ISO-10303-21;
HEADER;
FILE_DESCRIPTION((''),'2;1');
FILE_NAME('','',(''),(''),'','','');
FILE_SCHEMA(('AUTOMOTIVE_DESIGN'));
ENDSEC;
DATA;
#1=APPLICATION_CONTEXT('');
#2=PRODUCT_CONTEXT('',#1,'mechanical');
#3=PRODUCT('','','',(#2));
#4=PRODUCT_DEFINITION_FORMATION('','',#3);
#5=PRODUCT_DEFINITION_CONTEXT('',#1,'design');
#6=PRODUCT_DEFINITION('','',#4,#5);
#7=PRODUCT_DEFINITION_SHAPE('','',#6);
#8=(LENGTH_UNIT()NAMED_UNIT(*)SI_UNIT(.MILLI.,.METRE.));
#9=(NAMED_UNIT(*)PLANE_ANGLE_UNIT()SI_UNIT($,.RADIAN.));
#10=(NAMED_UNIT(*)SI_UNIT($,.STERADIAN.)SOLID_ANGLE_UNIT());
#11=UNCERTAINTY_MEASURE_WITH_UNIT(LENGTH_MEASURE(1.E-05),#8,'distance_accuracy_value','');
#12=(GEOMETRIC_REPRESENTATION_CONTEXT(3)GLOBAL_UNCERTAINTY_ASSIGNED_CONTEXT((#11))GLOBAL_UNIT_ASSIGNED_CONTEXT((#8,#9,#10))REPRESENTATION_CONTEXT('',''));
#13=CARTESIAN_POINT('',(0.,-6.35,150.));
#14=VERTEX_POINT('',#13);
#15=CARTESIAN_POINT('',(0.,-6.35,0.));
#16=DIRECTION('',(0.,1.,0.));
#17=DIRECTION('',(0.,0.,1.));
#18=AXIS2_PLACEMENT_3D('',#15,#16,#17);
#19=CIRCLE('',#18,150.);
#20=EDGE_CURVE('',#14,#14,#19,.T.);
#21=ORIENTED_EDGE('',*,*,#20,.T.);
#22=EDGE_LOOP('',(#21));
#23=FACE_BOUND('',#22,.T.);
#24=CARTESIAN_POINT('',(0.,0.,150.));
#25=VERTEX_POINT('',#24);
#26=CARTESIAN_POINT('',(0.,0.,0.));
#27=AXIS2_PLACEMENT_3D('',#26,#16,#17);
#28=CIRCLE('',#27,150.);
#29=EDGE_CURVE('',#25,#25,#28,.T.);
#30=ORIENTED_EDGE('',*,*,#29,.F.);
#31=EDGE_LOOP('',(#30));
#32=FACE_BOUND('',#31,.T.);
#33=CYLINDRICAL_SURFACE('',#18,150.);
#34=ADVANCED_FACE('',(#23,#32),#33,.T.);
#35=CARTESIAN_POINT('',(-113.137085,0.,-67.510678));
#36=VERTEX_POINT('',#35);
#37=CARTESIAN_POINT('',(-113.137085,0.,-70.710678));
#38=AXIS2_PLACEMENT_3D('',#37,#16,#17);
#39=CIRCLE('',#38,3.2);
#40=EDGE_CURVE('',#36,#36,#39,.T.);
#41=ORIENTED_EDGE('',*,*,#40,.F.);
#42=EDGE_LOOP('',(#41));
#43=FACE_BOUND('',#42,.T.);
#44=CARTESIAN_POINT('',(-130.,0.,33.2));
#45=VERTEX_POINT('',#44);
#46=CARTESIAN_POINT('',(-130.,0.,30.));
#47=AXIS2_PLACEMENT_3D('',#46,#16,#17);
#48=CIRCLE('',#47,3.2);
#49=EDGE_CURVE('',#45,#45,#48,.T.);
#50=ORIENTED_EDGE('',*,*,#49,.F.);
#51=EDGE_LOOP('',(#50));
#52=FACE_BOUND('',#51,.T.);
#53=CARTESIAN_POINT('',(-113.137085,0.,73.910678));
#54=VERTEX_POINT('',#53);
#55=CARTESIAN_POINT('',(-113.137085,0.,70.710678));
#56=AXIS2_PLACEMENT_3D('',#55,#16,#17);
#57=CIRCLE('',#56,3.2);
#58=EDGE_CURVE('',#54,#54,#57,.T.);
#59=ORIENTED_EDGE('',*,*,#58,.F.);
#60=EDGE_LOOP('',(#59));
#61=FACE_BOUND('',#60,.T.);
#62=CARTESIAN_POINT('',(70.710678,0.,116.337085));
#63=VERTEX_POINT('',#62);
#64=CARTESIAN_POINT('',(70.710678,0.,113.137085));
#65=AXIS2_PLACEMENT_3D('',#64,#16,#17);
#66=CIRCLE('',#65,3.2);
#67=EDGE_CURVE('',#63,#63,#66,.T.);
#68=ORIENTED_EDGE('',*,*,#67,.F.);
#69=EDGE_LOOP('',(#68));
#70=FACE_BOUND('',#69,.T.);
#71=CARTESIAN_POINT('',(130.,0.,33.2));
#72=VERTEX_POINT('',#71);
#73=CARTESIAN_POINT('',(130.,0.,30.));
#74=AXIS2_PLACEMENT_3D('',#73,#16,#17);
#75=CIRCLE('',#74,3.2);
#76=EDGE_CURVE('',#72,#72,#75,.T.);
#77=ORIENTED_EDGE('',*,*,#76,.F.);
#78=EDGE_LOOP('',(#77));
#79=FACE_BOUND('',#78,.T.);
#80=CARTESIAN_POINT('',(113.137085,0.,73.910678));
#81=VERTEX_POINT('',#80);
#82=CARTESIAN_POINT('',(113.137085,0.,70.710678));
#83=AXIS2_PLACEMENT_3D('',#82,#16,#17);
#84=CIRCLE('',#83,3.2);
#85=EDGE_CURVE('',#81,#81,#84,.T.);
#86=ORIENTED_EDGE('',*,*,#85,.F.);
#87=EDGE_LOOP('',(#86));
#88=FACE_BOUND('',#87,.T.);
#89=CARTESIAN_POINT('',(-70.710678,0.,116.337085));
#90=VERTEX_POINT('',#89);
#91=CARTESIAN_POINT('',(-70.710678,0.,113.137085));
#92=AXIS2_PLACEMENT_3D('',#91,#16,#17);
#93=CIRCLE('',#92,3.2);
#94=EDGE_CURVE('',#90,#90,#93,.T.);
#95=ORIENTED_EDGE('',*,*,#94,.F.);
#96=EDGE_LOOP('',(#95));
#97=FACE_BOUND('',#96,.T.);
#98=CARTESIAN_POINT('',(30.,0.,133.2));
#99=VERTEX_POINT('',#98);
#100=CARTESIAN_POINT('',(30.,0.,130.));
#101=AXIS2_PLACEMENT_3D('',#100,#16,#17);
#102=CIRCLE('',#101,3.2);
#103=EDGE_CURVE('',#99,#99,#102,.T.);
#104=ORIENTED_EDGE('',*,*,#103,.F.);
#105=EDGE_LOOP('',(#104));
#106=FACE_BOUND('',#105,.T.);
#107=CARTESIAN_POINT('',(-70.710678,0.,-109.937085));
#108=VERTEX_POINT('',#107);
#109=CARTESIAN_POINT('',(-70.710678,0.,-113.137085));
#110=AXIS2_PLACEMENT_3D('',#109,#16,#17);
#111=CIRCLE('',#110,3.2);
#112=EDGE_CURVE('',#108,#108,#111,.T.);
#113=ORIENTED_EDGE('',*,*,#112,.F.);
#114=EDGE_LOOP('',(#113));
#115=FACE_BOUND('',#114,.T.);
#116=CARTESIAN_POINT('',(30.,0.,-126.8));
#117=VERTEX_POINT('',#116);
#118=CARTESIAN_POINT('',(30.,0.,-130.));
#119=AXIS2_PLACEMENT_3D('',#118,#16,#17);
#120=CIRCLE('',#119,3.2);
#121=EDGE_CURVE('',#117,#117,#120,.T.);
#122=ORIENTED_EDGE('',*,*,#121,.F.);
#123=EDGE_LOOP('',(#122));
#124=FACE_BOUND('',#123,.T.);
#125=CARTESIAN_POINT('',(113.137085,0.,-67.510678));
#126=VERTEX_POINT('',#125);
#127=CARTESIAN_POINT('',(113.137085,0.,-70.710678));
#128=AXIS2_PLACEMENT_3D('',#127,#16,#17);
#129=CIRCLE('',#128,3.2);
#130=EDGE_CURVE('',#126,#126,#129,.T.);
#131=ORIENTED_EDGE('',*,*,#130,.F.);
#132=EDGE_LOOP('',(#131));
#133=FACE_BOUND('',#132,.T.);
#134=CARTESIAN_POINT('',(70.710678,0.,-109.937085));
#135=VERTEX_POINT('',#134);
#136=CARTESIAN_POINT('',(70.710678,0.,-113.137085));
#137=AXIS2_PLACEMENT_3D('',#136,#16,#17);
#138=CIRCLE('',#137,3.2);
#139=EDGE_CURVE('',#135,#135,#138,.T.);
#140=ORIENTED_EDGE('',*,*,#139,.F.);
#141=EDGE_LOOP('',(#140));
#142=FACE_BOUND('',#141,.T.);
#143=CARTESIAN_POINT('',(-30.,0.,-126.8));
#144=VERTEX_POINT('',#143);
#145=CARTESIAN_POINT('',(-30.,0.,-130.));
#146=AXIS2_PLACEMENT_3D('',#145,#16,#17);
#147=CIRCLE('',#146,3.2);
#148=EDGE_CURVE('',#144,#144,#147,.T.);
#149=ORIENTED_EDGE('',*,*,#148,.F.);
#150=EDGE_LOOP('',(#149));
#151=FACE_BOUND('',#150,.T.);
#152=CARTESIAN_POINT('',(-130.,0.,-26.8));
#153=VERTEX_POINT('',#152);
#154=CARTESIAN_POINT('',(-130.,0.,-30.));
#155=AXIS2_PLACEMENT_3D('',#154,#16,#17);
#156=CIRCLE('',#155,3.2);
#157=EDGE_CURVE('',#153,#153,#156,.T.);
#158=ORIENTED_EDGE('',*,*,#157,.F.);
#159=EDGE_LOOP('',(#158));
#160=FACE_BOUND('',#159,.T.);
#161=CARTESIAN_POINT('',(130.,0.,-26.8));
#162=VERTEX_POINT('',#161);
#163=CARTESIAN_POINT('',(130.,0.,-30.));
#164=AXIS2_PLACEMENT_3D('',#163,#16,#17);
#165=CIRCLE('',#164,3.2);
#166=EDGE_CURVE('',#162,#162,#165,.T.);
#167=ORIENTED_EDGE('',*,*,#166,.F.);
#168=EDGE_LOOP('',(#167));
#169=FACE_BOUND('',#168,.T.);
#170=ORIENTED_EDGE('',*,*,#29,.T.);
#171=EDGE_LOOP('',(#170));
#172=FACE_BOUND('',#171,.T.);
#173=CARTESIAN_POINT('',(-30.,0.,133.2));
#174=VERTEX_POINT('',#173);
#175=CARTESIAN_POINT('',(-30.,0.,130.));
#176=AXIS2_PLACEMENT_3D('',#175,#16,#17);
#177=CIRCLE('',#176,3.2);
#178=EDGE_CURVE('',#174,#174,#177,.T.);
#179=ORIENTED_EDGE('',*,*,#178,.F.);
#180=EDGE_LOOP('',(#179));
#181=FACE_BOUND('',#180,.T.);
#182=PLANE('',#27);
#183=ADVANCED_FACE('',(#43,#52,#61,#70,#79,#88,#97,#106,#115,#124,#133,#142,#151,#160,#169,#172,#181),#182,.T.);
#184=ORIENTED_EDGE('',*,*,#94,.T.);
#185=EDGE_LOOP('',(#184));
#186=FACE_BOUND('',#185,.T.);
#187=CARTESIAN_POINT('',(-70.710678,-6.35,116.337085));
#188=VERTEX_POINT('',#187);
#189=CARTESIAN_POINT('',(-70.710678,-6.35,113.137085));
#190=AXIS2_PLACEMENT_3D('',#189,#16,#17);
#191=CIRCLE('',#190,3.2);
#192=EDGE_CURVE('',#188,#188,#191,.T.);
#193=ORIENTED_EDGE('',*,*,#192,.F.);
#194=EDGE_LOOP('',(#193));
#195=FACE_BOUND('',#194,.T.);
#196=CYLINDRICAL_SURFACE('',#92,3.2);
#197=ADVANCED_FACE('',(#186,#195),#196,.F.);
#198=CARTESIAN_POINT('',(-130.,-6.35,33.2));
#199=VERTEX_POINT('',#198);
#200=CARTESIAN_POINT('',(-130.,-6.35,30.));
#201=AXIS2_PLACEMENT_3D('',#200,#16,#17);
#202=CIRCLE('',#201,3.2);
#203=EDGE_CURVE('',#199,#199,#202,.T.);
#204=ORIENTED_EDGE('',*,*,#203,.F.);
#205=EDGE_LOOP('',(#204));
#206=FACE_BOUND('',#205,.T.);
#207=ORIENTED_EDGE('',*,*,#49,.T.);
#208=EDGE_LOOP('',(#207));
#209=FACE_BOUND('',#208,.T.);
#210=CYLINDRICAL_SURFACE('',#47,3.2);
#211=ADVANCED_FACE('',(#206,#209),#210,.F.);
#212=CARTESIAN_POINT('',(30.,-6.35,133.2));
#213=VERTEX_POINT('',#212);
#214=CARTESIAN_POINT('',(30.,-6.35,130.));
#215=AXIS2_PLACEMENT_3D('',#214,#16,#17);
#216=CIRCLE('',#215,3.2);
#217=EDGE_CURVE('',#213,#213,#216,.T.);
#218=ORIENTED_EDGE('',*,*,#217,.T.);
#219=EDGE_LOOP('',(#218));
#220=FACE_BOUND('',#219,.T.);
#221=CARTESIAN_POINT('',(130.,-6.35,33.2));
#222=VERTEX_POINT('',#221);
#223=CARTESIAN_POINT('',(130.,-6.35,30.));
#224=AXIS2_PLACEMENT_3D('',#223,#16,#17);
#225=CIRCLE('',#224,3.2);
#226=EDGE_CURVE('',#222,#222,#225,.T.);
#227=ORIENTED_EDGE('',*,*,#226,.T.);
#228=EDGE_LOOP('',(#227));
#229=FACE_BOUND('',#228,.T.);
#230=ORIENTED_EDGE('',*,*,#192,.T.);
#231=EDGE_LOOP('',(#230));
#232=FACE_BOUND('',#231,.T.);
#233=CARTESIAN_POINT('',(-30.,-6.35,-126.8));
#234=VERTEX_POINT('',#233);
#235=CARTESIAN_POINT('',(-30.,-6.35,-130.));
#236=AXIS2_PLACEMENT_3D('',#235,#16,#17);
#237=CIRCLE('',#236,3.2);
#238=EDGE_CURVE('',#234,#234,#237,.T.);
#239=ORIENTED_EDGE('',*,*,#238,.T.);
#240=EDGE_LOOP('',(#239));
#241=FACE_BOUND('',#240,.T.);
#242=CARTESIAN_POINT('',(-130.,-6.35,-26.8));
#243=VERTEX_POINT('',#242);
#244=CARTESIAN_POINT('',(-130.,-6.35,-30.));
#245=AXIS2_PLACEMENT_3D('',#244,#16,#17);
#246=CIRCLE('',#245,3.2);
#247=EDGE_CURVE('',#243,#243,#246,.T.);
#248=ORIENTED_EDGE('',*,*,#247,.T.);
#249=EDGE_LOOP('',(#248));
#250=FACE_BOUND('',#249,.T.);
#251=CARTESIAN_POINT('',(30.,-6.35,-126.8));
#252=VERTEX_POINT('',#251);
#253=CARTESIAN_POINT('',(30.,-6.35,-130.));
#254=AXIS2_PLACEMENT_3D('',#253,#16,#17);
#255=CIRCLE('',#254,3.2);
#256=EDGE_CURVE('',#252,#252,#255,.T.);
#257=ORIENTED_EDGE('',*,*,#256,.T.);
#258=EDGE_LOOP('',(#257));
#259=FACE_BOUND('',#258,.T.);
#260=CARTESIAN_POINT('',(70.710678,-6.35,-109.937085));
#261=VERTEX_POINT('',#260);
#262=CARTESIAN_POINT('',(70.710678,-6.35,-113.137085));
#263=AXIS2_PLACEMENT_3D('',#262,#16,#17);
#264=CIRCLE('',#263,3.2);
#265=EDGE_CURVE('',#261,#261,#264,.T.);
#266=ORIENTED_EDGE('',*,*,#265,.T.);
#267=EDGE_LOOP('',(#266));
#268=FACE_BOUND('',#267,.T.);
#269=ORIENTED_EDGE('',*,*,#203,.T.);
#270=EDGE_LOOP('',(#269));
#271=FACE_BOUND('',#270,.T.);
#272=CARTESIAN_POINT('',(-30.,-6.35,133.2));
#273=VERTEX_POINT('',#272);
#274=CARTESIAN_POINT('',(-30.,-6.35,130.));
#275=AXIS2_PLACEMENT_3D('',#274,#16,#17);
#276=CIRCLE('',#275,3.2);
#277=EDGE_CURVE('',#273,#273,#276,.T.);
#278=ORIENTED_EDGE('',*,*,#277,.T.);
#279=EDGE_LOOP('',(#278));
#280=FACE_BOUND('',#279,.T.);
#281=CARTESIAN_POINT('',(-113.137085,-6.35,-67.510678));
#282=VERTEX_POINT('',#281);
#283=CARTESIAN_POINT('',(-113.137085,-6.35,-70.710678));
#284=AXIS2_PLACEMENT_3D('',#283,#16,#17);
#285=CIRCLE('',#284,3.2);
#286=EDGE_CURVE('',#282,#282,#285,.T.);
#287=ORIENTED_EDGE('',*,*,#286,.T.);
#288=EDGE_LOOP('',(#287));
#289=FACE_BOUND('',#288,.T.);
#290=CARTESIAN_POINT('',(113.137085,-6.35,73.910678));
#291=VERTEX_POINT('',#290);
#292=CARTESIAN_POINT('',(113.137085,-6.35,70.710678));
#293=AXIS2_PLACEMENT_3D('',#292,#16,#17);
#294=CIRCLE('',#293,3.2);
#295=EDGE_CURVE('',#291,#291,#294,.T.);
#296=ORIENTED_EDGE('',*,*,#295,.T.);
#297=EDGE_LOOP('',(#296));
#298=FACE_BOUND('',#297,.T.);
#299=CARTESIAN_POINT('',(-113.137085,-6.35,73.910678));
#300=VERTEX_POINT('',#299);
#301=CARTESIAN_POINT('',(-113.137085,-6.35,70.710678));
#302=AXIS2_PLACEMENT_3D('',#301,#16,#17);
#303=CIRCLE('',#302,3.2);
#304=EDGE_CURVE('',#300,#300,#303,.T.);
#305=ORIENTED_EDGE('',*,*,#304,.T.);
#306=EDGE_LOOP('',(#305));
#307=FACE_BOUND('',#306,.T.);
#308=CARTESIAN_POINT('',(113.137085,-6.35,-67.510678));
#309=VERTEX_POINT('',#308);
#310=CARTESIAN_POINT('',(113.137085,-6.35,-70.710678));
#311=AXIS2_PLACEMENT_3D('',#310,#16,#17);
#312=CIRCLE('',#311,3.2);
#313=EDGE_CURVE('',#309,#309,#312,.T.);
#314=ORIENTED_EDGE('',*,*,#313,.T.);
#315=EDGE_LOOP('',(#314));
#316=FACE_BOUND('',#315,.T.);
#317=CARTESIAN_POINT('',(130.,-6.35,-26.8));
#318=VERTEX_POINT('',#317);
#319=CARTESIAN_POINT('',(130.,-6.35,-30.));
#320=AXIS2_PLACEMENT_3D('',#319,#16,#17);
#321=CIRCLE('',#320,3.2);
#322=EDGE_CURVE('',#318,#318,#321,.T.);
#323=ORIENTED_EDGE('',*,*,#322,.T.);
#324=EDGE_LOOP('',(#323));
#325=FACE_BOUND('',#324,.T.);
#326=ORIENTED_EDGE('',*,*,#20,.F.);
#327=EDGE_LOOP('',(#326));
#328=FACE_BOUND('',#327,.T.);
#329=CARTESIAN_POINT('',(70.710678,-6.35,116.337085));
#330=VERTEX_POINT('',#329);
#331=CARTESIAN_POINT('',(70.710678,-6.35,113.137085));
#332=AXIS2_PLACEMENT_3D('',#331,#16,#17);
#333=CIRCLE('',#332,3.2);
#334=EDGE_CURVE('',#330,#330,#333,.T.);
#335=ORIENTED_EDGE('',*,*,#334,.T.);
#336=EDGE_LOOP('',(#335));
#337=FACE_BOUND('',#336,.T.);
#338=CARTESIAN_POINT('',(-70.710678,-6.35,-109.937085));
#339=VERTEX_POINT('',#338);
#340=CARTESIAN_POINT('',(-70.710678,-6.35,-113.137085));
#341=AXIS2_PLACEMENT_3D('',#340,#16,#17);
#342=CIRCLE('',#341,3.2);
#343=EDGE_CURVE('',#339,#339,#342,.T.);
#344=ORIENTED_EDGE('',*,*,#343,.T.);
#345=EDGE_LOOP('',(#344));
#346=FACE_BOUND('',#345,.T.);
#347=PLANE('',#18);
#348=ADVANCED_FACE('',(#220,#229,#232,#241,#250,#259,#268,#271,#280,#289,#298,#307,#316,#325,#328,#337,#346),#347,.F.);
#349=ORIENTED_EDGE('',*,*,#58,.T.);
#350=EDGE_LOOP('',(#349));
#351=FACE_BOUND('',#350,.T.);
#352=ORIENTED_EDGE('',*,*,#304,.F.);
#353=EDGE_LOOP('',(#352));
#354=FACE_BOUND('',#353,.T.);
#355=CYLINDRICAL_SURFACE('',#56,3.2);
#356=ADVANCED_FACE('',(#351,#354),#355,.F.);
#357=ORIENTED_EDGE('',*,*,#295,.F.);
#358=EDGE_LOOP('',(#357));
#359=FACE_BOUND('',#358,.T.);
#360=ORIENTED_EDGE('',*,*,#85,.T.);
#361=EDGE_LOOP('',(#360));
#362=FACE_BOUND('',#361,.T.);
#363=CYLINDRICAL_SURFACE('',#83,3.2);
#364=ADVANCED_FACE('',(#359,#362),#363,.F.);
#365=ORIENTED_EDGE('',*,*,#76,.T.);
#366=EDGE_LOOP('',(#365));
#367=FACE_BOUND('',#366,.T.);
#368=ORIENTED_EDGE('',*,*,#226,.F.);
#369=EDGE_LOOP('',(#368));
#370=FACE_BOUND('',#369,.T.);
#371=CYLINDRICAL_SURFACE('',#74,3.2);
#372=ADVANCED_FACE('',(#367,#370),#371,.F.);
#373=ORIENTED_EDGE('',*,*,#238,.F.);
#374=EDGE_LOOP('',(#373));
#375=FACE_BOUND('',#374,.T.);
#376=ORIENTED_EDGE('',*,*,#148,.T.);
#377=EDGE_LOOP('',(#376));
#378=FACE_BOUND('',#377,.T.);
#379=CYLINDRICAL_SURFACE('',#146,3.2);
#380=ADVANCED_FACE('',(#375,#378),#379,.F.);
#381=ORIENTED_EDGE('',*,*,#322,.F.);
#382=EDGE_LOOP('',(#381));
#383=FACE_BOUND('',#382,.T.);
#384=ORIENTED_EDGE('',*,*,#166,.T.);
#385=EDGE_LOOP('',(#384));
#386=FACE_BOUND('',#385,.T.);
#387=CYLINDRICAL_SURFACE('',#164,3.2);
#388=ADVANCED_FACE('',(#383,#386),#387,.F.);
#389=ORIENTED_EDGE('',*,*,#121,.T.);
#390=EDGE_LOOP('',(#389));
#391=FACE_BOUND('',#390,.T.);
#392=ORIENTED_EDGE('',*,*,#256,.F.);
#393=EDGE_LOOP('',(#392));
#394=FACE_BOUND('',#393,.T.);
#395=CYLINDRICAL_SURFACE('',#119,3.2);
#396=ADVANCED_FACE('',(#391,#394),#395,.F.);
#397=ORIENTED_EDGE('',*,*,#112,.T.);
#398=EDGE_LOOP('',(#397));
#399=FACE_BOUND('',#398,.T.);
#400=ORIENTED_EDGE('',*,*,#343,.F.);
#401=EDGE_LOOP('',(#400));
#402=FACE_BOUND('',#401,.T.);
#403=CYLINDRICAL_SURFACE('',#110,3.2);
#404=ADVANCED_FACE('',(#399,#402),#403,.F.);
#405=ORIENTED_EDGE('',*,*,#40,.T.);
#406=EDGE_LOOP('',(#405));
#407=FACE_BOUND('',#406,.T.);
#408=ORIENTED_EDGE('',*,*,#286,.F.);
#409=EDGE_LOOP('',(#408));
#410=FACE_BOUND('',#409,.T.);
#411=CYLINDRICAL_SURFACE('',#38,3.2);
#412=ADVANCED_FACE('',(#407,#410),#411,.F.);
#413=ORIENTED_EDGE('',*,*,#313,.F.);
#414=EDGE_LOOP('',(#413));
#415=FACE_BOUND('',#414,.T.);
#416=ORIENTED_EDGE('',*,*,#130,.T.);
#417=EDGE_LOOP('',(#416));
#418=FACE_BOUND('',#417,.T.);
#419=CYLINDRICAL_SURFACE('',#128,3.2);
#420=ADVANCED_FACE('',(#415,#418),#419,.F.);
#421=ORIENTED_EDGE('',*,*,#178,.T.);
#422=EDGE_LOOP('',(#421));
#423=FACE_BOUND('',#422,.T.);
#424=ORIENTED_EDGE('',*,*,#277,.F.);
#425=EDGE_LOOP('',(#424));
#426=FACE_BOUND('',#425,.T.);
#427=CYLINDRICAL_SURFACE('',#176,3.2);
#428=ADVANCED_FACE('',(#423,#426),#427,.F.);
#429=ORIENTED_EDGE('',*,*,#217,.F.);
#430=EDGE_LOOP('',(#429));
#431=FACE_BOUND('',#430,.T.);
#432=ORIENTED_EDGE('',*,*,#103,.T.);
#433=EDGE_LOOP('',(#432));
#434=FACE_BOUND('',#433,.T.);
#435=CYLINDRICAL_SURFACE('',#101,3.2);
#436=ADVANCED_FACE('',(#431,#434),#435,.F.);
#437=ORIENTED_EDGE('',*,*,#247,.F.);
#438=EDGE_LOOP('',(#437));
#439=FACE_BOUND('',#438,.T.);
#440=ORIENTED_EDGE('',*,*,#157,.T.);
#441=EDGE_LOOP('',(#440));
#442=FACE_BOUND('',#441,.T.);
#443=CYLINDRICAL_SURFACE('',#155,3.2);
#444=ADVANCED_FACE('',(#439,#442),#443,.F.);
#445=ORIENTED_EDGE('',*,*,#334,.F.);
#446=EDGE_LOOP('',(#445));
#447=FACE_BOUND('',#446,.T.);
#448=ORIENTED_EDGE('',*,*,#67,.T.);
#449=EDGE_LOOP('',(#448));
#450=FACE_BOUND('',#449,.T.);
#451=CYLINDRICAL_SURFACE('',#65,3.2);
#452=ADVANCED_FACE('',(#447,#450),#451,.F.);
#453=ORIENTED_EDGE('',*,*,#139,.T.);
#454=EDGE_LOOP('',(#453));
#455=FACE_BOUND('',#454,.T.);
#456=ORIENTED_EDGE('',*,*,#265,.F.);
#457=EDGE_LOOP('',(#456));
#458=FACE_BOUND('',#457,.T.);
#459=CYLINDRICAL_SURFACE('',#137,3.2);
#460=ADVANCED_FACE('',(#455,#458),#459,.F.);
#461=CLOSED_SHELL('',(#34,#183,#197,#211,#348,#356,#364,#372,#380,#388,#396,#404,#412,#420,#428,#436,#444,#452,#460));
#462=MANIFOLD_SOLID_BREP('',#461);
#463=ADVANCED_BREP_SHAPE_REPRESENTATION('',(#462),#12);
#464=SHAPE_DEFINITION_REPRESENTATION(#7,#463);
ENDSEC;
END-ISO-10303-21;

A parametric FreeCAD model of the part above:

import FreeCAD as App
import Part
import Sketcher
from FreeCAD import Vector
Q = App.Units.Quantity

doc = App.newDocument("Part")
body = doc.addObject("PartDesign::Body", "Body")

# Sketch on XZ plane
sketch1 = doc.addObject("Sketcher::SketchObject", "Sketch")
body.addObject(sketch1)
sketch1.AttachmentSupport = (doc.XZ_Plane, [""])
sketch1.MapMode = "FlatFace"
sketch1.addGeometry(Part.Circle(Vector(0, 0, 0), Vector(0, 0, 1), 150), False)
sketch1.addConstraint(Sketcher.Constraint("Coincident", 0, 3, -1, 1))
sketch1.addConstraint(Sketcher.Constraint("Diameter", 0, Q("300 mm")))
pad1 = doc.addObject("PartDesign::Pad", "Pad")
body.addObject(pad1)
pad1.Profile = sketch1
pad1.Length = 6.35

# Sketch on XZ plane
sketch2 = doc.addObject("Sketcher::SketchObject", "Sketch001")
body.addObject(sketch2)
sketch2.AttachmentSupport = (doc.XZ_Plane, [""])
sketch2.MapMode = "FlatFace"
sketch2.addGeometry(Part.Circle(Vector(-30, -130, 0), Vector(0, 0, 1), 3.2), False)
sketch2.addGeometry(Part.Circle(Vector(30, -130, 0), Vector(0, 0, 1), 3.2), False)
sketch2.addConstraint(Sketcher.Constraint("Equal", 0, 1))
sketch2.addConstraint(Sketcher.Constraint("Symmetric", 0, 3, 1, 3, -2))
sketch2.addConstraint(Sketcher.Constraint("Diameter", 0, Q("6.4 mm")))
sketch2.addConstraint(Sketcher.Constraint("DistanceX", 0, 3, -1, 1, Q("30 mm")))
sketch2.addConstraint(Sketcher.Constraint("DistanceY", 0, 3, -1, 1, Q("130 mm")))
doc.recompute()
hole = doc.addObject("PartDesign::Hole", "Hole")
body.addObject(hole)
hole.Profile = sketch2
hole.ThreadType = "None"
hole.Diameter = 6.4
hole.DepthType = "ThroughAll"
hole.Reversed = True
doc.recompute()

polarpattern = doc.addObject("PartDesign::PolarPattern", "PolarPattern")
body.addObject(polarpattern)
polarpattern.Originals = [hole]
polarpattern.Axis = (doc.Y_Axis, [""])
polarpattern.Angle = 360
polarpattern.Occurrences = 8
body.Tip = polarpattern

doc.recompute()
